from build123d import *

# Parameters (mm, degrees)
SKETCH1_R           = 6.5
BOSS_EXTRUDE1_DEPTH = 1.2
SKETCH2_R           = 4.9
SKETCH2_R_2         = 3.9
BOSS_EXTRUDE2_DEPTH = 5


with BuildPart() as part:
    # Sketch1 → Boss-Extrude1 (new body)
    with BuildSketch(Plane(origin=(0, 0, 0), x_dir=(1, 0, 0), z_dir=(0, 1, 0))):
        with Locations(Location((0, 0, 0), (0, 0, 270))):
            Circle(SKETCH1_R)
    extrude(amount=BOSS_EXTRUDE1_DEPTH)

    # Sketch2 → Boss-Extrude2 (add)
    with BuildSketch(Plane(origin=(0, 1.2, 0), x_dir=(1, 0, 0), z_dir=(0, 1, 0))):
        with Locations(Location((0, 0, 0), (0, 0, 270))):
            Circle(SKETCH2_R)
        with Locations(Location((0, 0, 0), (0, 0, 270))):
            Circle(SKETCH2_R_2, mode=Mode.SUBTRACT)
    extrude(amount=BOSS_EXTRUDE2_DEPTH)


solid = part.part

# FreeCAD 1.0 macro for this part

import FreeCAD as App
import Part
import Sketcher

V = App.Vector

doc = App.newDocument("Part")
body = doc.addObject("PartDesign::Body", "Body")

sketch1 = body.newObject("Sketcher::SketchObject", "Sketch")
sketch1.AttachmentSupport = (doc.getObject("XZ_Plane"), [""])
sketch1.MapMode = "FlatFace"
sketch1.addGeometry(Part.Circle(V(0, 0, 0), V(0, 0, 1), 6.5), False)
sketch1.addConstraint([
    Sketcher.Constraint("Coincident", 0, 3, -1, 1),
    Sketcher.Constraint("Diameter", 0, 13.0),
])
pad1 = body.newObject("PartDesign::Pad", "Pad")
pad1.Profile = sketch1
pad1.Length = 1.2
pad1.Reversed = True

sketch2 = body.newObject("Sketcher::SketchObject", "Sketch001")
sketch2.AttachmentSupport = (doc.getObject("XZ_Plane"), [""])
sketch2.MapMode = "FlatFace"
sketch2.AttachmentOffset = App.Placement(V(0, 0, -1.2), App.Rotation())
sketch2.addGeometry([
    Part.Circle(V(0, 0, 0), V(0, 0, 1), 4.9),
    Part.Circle(V(0, 0, 0), V(0, 0, 1), 3.9),
], False)
sketch2.addConstraint([
    Sketcher.Constraint("Coincident", 0, 3, -1, 1),
    Sketcher.Constraint("Coincident", 1, 3, -1, 1),
    Sketcher.Constraint("Diameter", 0, 9.8),
    Sketcher.Constraint("Diameter", 1, 7.8),
])
pad2 = body.newObject("PartDesign::Pad", "Pad001")
pad2.Profile = sketch2
pad2.Length = 5
pad2.Reversed = True

doc.recompute()
